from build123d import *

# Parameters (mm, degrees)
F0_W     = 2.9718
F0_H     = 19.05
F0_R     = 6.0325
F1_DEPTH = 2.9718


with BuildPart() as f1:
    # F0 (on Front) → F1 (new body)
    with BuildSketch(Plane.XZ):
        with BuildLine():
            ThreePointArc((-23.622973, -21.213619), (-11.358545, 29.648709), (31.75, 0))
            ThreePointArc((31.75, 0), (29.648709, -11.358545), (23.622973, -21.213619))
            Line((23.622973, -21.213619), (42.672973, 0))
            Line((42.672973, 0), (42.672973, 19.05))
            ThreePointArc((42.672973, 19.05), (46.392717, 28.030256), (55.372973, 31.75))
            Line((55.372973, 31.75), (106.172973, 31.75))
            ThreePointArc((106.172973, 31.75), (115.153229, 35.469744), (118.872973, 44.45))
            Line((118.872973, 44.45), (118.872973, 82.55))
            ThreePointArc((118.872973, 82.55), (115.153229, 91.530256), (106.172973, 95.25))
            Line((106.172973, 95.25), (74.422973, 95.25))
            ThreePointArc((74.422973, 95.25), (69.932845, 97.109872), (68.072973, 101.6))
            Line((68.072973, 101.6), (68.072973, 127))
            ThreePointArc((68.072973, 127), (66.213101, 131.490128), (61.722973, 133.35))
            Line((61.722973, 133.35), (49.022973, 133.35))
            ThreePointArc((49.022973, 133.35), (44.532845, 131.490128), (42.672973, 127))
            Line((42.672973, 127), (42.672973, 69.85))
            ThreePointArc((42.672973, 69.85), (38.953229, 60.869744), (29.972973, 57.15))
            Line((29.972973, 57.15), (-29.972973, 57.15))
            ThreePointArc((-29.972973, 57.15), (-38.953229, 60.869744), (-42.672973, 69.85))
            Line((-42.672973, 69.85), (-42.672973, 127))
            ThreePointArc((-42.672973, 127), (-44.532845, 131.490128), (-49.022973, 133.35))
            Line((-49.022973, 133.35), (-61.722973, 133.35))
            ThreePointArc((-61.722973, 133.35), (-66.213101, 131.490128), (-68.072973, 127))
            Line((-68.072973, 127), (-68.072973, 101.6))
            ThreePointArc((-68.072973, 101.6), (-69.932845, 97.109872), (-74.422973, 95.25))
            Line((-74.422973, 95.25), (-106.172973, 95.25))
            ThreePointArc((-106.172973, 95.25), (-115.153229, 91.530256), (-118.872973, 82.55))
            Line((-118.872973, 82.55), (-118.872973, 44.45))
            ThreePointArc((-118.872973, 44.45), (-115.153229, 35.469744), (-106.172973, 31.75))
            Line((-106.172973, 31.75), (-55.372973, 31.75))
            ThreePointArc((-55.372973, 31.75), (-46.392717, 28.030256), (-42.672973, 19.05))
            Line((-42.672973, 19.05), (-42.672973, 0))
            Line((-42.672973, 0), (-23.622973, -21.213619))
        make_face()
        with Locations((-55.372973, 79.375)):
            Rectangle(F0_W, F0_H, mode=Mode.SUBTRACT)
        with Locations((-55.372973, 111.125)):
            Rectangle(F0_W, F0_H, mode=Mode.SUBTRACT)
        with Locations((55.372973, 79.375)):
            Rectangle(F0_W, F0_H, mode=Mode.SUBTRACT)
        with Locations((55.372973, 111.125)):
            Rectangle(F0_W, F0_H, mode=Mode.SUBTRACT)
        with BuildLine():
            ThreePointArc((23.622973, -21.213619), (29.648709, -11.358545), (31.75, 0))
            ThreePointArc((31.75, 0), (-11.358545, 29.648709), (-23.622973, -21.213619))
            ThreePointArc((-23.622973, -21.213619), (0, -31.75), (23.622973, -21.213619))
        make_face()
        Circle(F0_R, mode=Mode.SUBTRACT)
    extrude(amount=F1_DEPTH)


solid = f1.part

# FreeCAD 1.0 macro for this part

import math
import FreeCAD as App
import Part
import Sketcher

V = App.Vector
Q = App.Units.Quantity

doc = App.newDocument("Part")
body = doc.addObject("PartDesign::Body", "Body")

# Sketch on XZ plane
sketch1 = doc.addObject("Sketcher::SketchObject", "Sketch")
body.addObject(sketch1)
sketch1.AttachmentSupport = (doc.XZ_Plane, [""])
sketch1.MapMode = "FlatFace"
sketch1.addGeometry(Part.LineSegment(V(-42.672973, 0, 0), V(-23.622973, -21.213619, 0)), False)
sketch1.addGeometry(Part.ArcOfCircle(Part.Circle(V(0, -0.000001, 0), V(0, 0, 1), 31.749999), math.radians(-138.075908), math.radians(-41.924092)), False)
sketch1.addGeometry(Part.LineSegment(V(23.622973, -21.213619, 0), V(42.672973, 0, 0)), False)
sketch1.addGeometry(Part.LineSegment(V(42.672973, 0, 0), V(42.672973, 19.05, 0)), False)
sketch1.addGeometry(Part.ArcOfCircle(Part.Circle(V(55.372973, 19.05, 0), V(0, 0, 1), 12.7), math.radians(90.000002), math.radians(179.999998)), False)
sketch1.addGeometry(Part.LineSegment(V(55.372973, 31.75, 0), V(106.172973, 31.75, 0)), False)
sketch1.addGeometry(Part.ArcOfCircle(Part.Circle(V(106.172973, 44.45, 0), V(0, 0, 1), 12.7), math.radians(-89.999998), math.radians(-0.000002)), False)
sketch1.addGeometry(Part.LineSegment(V(118.872973, 44.45, 0), V(118.872973, 82.55, 0)), False)
sketch1.addGeometry(Part.ArcOfCircle(Part.Circle(V(106.172973, 82.55, 0), V(0, 0, 1), 12.7), math.radians(0.000002), math.radians(89.999998)), False)
sketch1.addGeometry(Part.LineSegment(V(106.172973, 95.25, 0), V(74.422973, 95.25, 0)), False)
sketch1.addGeometry(Part.ArcOfCircle(Part.Circle(V(74.422973, 101.6, 0), V(0, 0, 1), 6.35), math.radians(-179.999998), math.radians(-90.000002)), False)
sketch1.addGeometry(Part.LineSegment(V(68.072973, 101.6, 0), V(68.072973, 127, 0)), False)
sketch1.addGeometry(Part.ArcOfCircle(Part.Circle(V(61.722973, 127, 0), V(0, 0, 1), 6.35), math.radians(0.000002), math.radians(89.999998)), False)
sketch1.addGeometry(Part.LineSegment(V(61.722973, 133.35, 0), V(49.022973, 133.35, 0)), False)
sketch1.addGeometry(Part.ArcOfCircle(Part.Circle(V(49.022973, 127, 0), V(0, 0, 1), 6.35), math.radians(90.000002), math.radians(179.999998)), False)
sketch1.addGeometry(Part.LineSegment(V(42.672973, 127, 0), V(42.672973, 69.85, 0)), False)
sketch1.addGeometry(Part.ArcOfCircle(Part.Circle(V(29.972973, 69.85, 0), V(0, 0, 1), 12.7), math.radians(-89.999998), math.radians(-0.000002)), False)
sketch1.addGeometry(Part.LineSegment(V(29.972973, 57.15, 0), V(-29.972973, 57.15, 0)), False)
sketch1.addGeometry(Part.ArcOfCircle(Part.Circle(V(-29.972973, 69.85, 0), V(0, 0, 1), 12.7), math.radians(-179.999998), math.radians(-90.000002)), False)
sketch1.addGeometry(Part.LineSegment(V(-42.672973, 69.85, 0), V(-42.672973, 127, 0)), False)
sketch1.addGeometry(Part.ArcOfCircle(Part.Circle(V(-49.022973, 127, 0), V(0, 0, 1), 6.35), math.radians(0.000002), math.radians(89.999998)), False)
sketch1.addGeometry(Part.LineSegment(V(-49.022973, 133.35, 0), V(-61.722973, 133.35, 0)), False)
sketch1.addGeometry(Part.ArcOfCircle(Part.Circle(V(-61.722973, 127, 0), V(0, 0, 1), 6.35), math.radians(90.000002), math.radians(179.999998)), False)
sketch1.addGeometry(Part.LineSegment(V(-68.072973, 127, 0), V(-68.072973, 101.6, 0)), False)
sketch1.addGeometry(Part.ArcOfCircle(Part.Circle(V(-74.422973, 101.6, 0), V(0, 0, 1), 6.35), math.radians(-89.999998), math.radians(-0.000002)), False)
sketch1.addGeometry(Part.LineSegment(V(-74.422973, 95.25, 0), V(-106.172973, 95.25, 0)), False)
sketch1.addGeometry(Part.ArcOfCircle(Part.Circle(V(-106.172973, 82.55, 0), V(0, 0, 1), 12.7), math.radians(90.000002), math.radians(179.999998)), False)
sketch1.addGeometry(Part.LineSegment(V(-118.872973, 82.55, 0), V(-118.872973, 44.45, 0)), False)
sketch1.addGeometry(Part.ArcOfCircle(Part.Circle(V(-106.172973, 44.45, 0), V(0, 0, 1), 12.7), math.radians(-179.999998), math.radians(-90.000002)), False)
sketch1.addGeometry(Part.LineSegment(V(-106.172973, 31.75, 0), V(-55.372973, 31.75, 0)), False)
sketch1.addGeometry(Part.ArcOfCircle(Part.Circle(V(-55.372973, 19.05, 0), V(0, 0, 1), 12.7), math.radians(0.000002), math.radians(89.999998)), False)
sketch1.addGeometry(Part.LineSegment(V(-42.672973, 19.05, 0), V(-42.672973, 0, 0)), False)
sketch1.addGeometry(Part.Circle(V(0, 0, 0), V(0, 0, 1), 6.0325), False)
sketch1.addGeometry(Part.LineSegment(V(-53.887073, 69.85, 0), V(-56.858873, 69.85, 0)), False)
sketch1.addGeometry(Part.LineSegment(V(-56.858873, 69.85, 0), V(-56.858873, 88.9, 0)), False)
sketch1.addGeometry(Part.LineSegment(V(-56.858873, 88.9, 0), V(-53.887073, 88.9, 0)), False)
sketch1.addGeometry(Part.LineSegment(V(-53.887073, 88.9, 0), V(-53.887073, 69.85, 0)), False)
sketch1.addGeometry(Part.LineSegment(V(-53.887073, 101.6, 0), V(-56.858873, 101.6, 0)), False)
sketch1.addGeometry(Part.LineSegment(V(-56.858873, 101.6, 0), V(-56.858873, 120.65, 0)), False)
sketch1.addGeometry(Part.LineSegment(V(-56.858873, 120.65, 0), V(-53.887073, 120.65, 0)), False)
sketch1.addGeometry(Part.LineSegment(V(-53.887073, 120.65, 0), V(-53.887073, 101.6, 0)), False)
sketch1.addGeometry(Part.LineSegment(V(56.858873, 69.85, 0), V(53.887073, 69.85, 0)), False)
sketch1.addGeometry(Part.LineSegment(V(53.887073, 69.85, 0), V(53.887073, 88.9, 0)), False)
sketch1.addGeometry(Part.LineSegment(V(53.887073, 88.9, 0), V(56.858873, 88.9, 0)), False)
sketch1.addGeometry(Part.LineSegment(V(56.858873, 88.9, 0), V(56.858873, 69.85, 0)), False)
sketch1.addGeometry(Part.LineSegment(V(56.858873, 101.6, 0), V(53.887073, 101.6, 0)), False)
sketch1.addGeometry(Part.LineSegment(V(53.887073, 101.6, 0), V(53.887073, 120.65, 0)), False)
sketch1.addGeometry(Part.LineSegment(V(53.887073, 120.65, 0), V(56.858873, 120.65, 0)), False)
sketch1.addGeometry(Part.LineSegment(V(56.858873, 120.65, 0), V(56.858873, 101.6, 0)), False)
sketch1.addConstraint(Sketcher.Constraint("Tangent", 0, 2, 1, 1))
sketch1.addConstraint(Sketcher.Constraint("Tangent", 1, 2, 2, 1))
sketch1.addConstraint(Sketcher.Constraint("Coincident", 2, 2, 3, 1))
sketch1.addConstraint(Sketcher.Constraint("Tangent", 3, 2, 4, 2))
sketch1.addConstraint(Sketcher.Constraint("Tangent", 4, 1, 5, 1))
sketch1.addConstraint(Sketcher.Constraint("Tangent", 5, 2, 6, 1))
sketch1.addConstraint(Sketcher.Constraint("Tangent", 6, 2, 7, 1))
sketch1.addConstraint(Sketcher.Constraint("Tangent", 7, 2, 8, 1))
sketch1.addConstraint(Sketcher.Constraint("Tangent", 8, 2, 9, 1))
sketch1.addConstraint(Sketcher.Constraint("Tangent", 9, 2, 10, 2))
sketch1.addConstraint(Sketcher.Constraint("Tangent", 10, 1, 11, 1))
sketch1.addConstraint(Sketcher.Constraint("Tangent", 11, 2, 12, 1))
sketch1.addConstraint(Sketcher.Constraint("Tangent", 12, 2, 13, 1))
sketch1.addConstraint(Sketcher.Constraint("Tangent", 13, 2, 14, 1))
sketch1.addConstraint(Sketcher.Constraint("Tangent", 14, 2, 15, 1))
sketch1.addConstraint(Sketcher.Constraint("Tangent", 15, 2, 16, 2))
sketch1.addConstraint(Sketcher.Constraint("Tangent", 16, 1, 17, 1))
sketch1.addConstraint(Sketcher.Constraint("Tangent", 17, 2, 18, 2))
sketch1.addConstraint(Sketcher.Constraint("Tangent", 18, 1, 19, 1))
sketch1.addConstraint(Sketcher.Constraint("Tangent", 19, 2, 20, 1))
sketch1.addConstraint(Sketcher.Constraint("Tangent", 20, 2, 21, 1))
sketch1.addConstraint(Sketcher.Constraint("Tangent", 21, 2, 22, 1))
sketch1.addConstraint(Sketcher.Constraint("Tangent", 22, 2, 23, 1))
sketch1.addConstraint(Sketcher.Constraint("Tangent", 23, 2, 24, 2))
sketch1.addConstraint(Sketcher.Constraint("Tangent", 24, 1, 25, 1))
sketch1.addConstraint(Sketcher.Constraint("Tangent", 25, 2, 26, 1))
sketch1.addConstraint(Sketcher.Constraint("Tangent", 26, 2, 27, 1))
sketch1.addConstraint(Sketcher.Constraint("Tangent", 27, 2, 28, 1))
sketch1.addConstraint(Sketcher.Constraint("Tangent", 28, 2, 29, 1))
sketch1.addConstraint(Sketcher.Constraint("Tangent", 29, 2, 30, 2))
sketch1.addConstraint(Sketcher.Constraint("Tangent", 30, 1, 31, 1))
sketch1.addConstraint(Sketcher.Constraint("Coincident", 31, 2, 0, 1))
sketch1.addConstraint(Sketcher.Constraint("Coincident", 33, 2, 34, 1))
sketch1.addConstraint(Sketcher.Constraint("Coincident", 34, 2, 35, 1))
sketch1.addConstraint(Sketcher.Constraint("Coincident", 35, 2, 36, 1))
sketch1.addConstraint(Sketcher.Constraint("Coincident", 36, 2, 33, 1))
sketch1.addConstraint(Sketcher.Constraint("Coincident", 37, 2, 38, 1))
sketch1.addConstraint(Sketcher.Constraint("Coincident", 38, 2, 39, 1))
sketch1.addConstraint(Sketcher.Constraint("Coincident", 39, 2, 40, 1))
sketch1.addConstraint(Sketcher.Constraint("Coincident", 40, 2, 37, 1))
sketch1.addConstraint(Sketcher.Constraint("Coincident", 41, 2, 42, 1))
sketch1.addConstraint(Sketcher.Constraint("Coincident", 42, 2, 43, 1))
sketch1.addConstraint(Sketcher.Constraint("Coincident", 43, 2, 44, 1))
sketch1.addConstraint(Sketcher.Constraint("Coincident", 44, 2, 41, 1))
sketch1.addConstraint(Sketcher.Constraint("Coincident", 45, 2, 46, 1))
sketch1.addConstraint(Sketcher.Constraint("Coincident", 46, 2, 47, 1))
sketch1.addConstraint(Sketcher.Constraint("Coincident", 47, 2, 48, 1))
sketch1.addConstraint(Sketcher.Constraint("Coincident", 48, 2, 45, 1))
sketch1.addConstraint(Sketcher.Constraint("Vertical", 3))
sketch1.addConstraint(Sketcher.Constraint("Horizontal", 5))
sketch1.addConstraint(Sketcher.Constraint("Vertical", 7))
sketch1.addConstraint(Sketcher.Constraint("Horizontal", 9))
sketch1.addConstraint(Sketcher.Constraint("Vertical", 11))
sketch1.addConstraint(Sketcher.Constraint("Horizontal", 13))
sketch1.addConstraint(Sketcher.Constraint("Vertical", 15))
sketch1.addConstraint(Sketcher.Constraint("Horizontal", 17))
sketch1.addConstraint(Sketcher.Constraint("Vertical", 19))
sketch1.addConstraint(Sketcher.Constraint("Horizontal", 21))
sketch1.addConstraint(Sketcher.Constraint("Vertical", 23))
sketch1.addConstraint(Sketcher.Constraint("Horizontal", 25))
sketch1.addConstraint(Sketcher.Constraint("Vertical", 27))
sketch1.addConstraint(Sketcher.Constraint("Horizontal", 29))
sketch1.addConstraint(Sketcher.Constraint("Vertical", 31))
sketch1.addConstraint(Sketcher.Constraint("Horizontal", 33))
sketch1.addConstraint(Sketcher.Constraint("Vertical", 34))
sketch1.addConstraint(Sketcher.Constraint("Horizontal", 35))
sketch1.addConstraint(Sketcher.Constraint("Vertical", 36))
sketch1.addConstraint(Sketcher.Constraint("Horizontal", 37))
sketch1.addConstraint(Sketcher.Constraint("Vertical", 38))
sketch1.addConstraint(Sketcher.Constraint("Horizontal", 39))
sketch1.addConstraint(Sketcher.Constraint("Vertical", 40))
sketch1.addConstraint(Sketcher.Constraint("Horizontal", 41))
sketch1.addConstraint(Sketcher.Constraint("Vertical", 42))
sketch1.addConstraint(Sketcher.Constraint("Horizontal", 43))
sketch1.addConstraint(Sketcher.Constraint("Vertical", 44))
sketch1.addConstraint(Sketcher.Constraint("Horizontal", 45))
sketch1.addConstraint(Sketcher.Constraint("Vertical", 46))
sketch1.addConstraint(Sketcher.Constraint("Horizontal", 47))
sketch1.addConstraint(Sketcher.Constraint("Vertical", 48))
sketch1.addConstraint(Sketcher.Constraint("Coincident", 1, 3, -1, 1))
sketch1.addConstraint(Sketcher.Constraint("Coincident", 32, 3, -1, 1))
sketch1.addConstraint(Sketcher.Constraint("Equal", 4, 6))
sketch1.addConstraint(Sketcher.Constraint("Equal", 6, 8))
sketch1.addConstraint(Sketcher.Constraint("Equal", 10, 12))
sketch1.addConstraint(Sketcher.Constraint("Equal", 12, 14))
sketch1.addConstraint(Sketcher.Constraint("Equal", 8, 16))
sketch1.addConstraint(Sketcher.Constraint("Equal", 16, 18))
sketch1.addConstraint(Sketcher.Constraint("Equal", 14, 20))
sketch1.addConstraint(Sketcher.Constraint("Equal", 20, 22))
sketch1.addConstraint(Sketcher.Constraint("Equal", 22, 24))
sketch1.addConstraint(Sketcher.Constraint("Equal", 18, 26))
sketch1.addConstraint(Sketcher.Constraint("Equal", 26, 28))
sketch1.addConstraint(Sketcher.Constraint("Equal", 28, 30))
sketch1.addConstraint(Sketcher.Constraint("Symmetric", 2, 2, 31, 2, -1, 1))
sketch1.addConstraint(Sketcher.Constraint("Symmetric", 14, 3, 20, 3, -2))
sketch1.addConstraint(Sketcher.Constraint("Symmetric", 10, 3, 24, 3, -2))
sketch1.addConstraint(Sketcher.Constraint("Symmetric", 6, 3, 28, 3, -2))
sketch1.addConstraint(Sketcher.Constraint("Symmetric", 36, 2, 41, 2, -2))
sketch1.addConstraint(Sketcher.Constraint("Symmetric", 34, 2, 43, 2, -2))
sketch1.addConstraint(Sketcher.Constraint("Symmetric", 40, 2, 45, 2, -2))
sketch1.addConstraint(Sketcher.Constraint("Symmetric", 38, 2, 47, 2, -2))
sketch1.addConstraint(Sketcher.Constraint("PointOnObject", 2, 2, -1))
sketch1.addConstraint(Sketcher.Constraint("Horizontal", 18, 1, 33, 2))
sketch1.addConstraint(Sketcher.Constraint("Horizontal", 23, 2, 37, 2))
sketch1.addConstraint(Sketcher.Constraint("Vertical", 3, 2, 14, 2))
sketch1.addConstraint(Sketcher.Constraint("Vertical", 34, 2, 37, 2))
sketch1.addConstraint(Sketcher.Constraint("Vertical", 36, 2, 39, 2))
sketch1.addConstraint(Sketcher.Constraint("Equal", 31, 34))
sketch1.addConstraint(Sketcher.Constraint("Equal", 36, 38))
sketch1.addConstraint(Sketcher.Constraint("Radius", 4, Q("0.5 in")))
sketch1.addConstraint(Sketcher.Constraint("DistanceX", 5, 1, 5, 2, Q("2 in")))
sketch1.addConstraint(Sketcher.Constraint("DistanceY", 11, 1, 11, 2, Q("1 in")))
sketch1.addConstraint(Sketcher.Constraint("Radius", 1, Q("1.25 in")))
sketch1.addConstraint(Sketcher.Constraint("Radius", 10, Q("0.25 in")))
sketch1.addConstraint(Sketcher.Constraint("Diameter", 32, Q("0.475 in")))
sketch1.addConstraint(Sketcher.Constraint("DistanceX", 13, 2, 13, 1, Q("0.5 in")))
sketch1.addConstraint(Sketcher.Constraint("DistanceY", 7, 1, 7, 2, Q("1.5 in")))
sketch1.addConstraint(Sketcher.Constraint("DistanceY", -1, 1, 10, 3, Q("4 in")))
sketch1.addConstraint(Sketcher.Constraint("DistanceY", 15, 2, 15, 1, Q("2.25 in")))
sketch1.addConstraint(Sketcher.Constraint("DistanceX", 33, 2, 33, 1, Q("0.117 in")))
sketch1.addConstraint(Sketcher.Constraint("DistanceX", 17, 2, 17, 1, 59.945946))
sketch1.addConstraint(Sketcher.Constraint("DistanceX", 33, 2, -1, 1, 56.858873))
pad1 = doc.addObject("PartDesign::Pad", "Pad")
body.addObject(pad1)
pad1.Profile = sketch1
pad1.Length = Q("0.117 in")

doc.recompute()
